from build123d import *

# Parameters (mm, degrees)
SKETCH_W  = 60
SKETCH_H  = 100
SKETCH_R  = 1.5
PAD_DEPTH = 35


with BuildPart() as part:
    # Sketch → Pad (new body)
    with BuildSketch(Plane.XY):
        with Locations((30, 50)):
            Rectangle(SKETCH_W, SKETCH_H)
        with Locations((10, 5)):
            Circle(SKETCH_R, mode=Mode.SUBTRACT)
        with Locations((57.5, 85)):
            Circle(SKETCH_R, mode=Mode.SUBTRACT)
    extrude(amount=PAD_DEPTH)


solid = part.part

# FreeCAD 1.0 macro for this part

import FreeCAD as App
import Part
import Sketcher

V = App.Vector
Q = App.Units.Quantity

doc = App.newDocument("Part")
body = doc.addObject("PartDesign::Body", "Body")

sketch1 = doc.addObject("Sketcher::SketchObject", "Sketch")
body.addObject(sketch1)
sketch1.AttachmentSupport = (doc.XY_Plane, [""])
sketch1.MapMode = "FlatFace"
sketch1.addGeometry(Part.LineSegment(V(0, 100, 0), V(0, 0, 0)), False)
sketch1.addGeometry(Part.LineSegment(V(0, 0, 0), V(60, 0, 0)), False)
sketch1.addGeometry(Part.LineSegment(V(60, 0, 0), V(60, 100, 0)), False)
sketch1.addGeometry(Part.LineSegment(V(60, 100, 0), V(0, 100, 0)), False)
sketch1.addGeometry(Part.Circle(V(10, 5, 0), V(0, 0, 1), 1.5), False)
sketch1.addGeometry(Part.Circle(V(57.5, 85, 0), V(0, 0, 1), 1.5), False)
sketch1.addConstraint(Sketcher.Constraint("Coincident", 0, 2, 1, 1))
sketch1.addConstraint(Sketcher.Constraint("Coincident", 1, 2, 2, 1))
sketch1.addConstraint(Sketcher.Constraint("Coincident", 2, 2, 3, 1))
sketch1.addConstraint(Sketcher.Constraint("Coincident", 3, 2, 0, 1))
sketch1.addConstraint(Sketcher.Constraint("Vertical", 0))
sketch1.addConstraint(Sketcher.Constraint("Horizontal", 1))
sketch1.addConstraint(Sketcher.Constraint("Vertical", 2))
sketch1.addConstraint(Sketcher.Constraint("Horizontal", 3))
sketch1.addConstraint(Sketcher.Constraint("Coincident", 0, 2, -1, 1))
sketch1.addConstraint(Sketcher.Constraint("Equal", 4, 5))
sketch1.addConstraint(Sketcher.Constraint("Diameter", 4, Q("3 mm")))
sketch1.addConstraint(Sketcher.Constraint("DistanceX", 1, 1, 1, 2, Q("60 mm")))
sketch1.addConstraint(Sketcher.Constraint("DistanceY", 0, 2, 0, 1, Q("100 mm")))
sketch1.addConstraint(Sketcher.Constraint("DistanceX", -1, 1, 4, 3, Q("10 mm")))
sketch1.addConstraint(Sketcher.Constraint("DistanceY", -1, 1, 4, 3, Q("5 mm")))
sketch1.addConstraint(Sketcher.Constraint("DistanceY", -1, 1, 5, 3, Q("85 mm")))
sketch1.addConstraint(Sketcher.Constraint("DistanceX", -1, 1, 5, 3, Q("57.5 mm")))
pad1 = doc.addObject("PartDesign::Pad", "Pad")
body.addObject(pad1)
pad1.Profile = sketch1
pad1.Length = 35

doc.recompute()
